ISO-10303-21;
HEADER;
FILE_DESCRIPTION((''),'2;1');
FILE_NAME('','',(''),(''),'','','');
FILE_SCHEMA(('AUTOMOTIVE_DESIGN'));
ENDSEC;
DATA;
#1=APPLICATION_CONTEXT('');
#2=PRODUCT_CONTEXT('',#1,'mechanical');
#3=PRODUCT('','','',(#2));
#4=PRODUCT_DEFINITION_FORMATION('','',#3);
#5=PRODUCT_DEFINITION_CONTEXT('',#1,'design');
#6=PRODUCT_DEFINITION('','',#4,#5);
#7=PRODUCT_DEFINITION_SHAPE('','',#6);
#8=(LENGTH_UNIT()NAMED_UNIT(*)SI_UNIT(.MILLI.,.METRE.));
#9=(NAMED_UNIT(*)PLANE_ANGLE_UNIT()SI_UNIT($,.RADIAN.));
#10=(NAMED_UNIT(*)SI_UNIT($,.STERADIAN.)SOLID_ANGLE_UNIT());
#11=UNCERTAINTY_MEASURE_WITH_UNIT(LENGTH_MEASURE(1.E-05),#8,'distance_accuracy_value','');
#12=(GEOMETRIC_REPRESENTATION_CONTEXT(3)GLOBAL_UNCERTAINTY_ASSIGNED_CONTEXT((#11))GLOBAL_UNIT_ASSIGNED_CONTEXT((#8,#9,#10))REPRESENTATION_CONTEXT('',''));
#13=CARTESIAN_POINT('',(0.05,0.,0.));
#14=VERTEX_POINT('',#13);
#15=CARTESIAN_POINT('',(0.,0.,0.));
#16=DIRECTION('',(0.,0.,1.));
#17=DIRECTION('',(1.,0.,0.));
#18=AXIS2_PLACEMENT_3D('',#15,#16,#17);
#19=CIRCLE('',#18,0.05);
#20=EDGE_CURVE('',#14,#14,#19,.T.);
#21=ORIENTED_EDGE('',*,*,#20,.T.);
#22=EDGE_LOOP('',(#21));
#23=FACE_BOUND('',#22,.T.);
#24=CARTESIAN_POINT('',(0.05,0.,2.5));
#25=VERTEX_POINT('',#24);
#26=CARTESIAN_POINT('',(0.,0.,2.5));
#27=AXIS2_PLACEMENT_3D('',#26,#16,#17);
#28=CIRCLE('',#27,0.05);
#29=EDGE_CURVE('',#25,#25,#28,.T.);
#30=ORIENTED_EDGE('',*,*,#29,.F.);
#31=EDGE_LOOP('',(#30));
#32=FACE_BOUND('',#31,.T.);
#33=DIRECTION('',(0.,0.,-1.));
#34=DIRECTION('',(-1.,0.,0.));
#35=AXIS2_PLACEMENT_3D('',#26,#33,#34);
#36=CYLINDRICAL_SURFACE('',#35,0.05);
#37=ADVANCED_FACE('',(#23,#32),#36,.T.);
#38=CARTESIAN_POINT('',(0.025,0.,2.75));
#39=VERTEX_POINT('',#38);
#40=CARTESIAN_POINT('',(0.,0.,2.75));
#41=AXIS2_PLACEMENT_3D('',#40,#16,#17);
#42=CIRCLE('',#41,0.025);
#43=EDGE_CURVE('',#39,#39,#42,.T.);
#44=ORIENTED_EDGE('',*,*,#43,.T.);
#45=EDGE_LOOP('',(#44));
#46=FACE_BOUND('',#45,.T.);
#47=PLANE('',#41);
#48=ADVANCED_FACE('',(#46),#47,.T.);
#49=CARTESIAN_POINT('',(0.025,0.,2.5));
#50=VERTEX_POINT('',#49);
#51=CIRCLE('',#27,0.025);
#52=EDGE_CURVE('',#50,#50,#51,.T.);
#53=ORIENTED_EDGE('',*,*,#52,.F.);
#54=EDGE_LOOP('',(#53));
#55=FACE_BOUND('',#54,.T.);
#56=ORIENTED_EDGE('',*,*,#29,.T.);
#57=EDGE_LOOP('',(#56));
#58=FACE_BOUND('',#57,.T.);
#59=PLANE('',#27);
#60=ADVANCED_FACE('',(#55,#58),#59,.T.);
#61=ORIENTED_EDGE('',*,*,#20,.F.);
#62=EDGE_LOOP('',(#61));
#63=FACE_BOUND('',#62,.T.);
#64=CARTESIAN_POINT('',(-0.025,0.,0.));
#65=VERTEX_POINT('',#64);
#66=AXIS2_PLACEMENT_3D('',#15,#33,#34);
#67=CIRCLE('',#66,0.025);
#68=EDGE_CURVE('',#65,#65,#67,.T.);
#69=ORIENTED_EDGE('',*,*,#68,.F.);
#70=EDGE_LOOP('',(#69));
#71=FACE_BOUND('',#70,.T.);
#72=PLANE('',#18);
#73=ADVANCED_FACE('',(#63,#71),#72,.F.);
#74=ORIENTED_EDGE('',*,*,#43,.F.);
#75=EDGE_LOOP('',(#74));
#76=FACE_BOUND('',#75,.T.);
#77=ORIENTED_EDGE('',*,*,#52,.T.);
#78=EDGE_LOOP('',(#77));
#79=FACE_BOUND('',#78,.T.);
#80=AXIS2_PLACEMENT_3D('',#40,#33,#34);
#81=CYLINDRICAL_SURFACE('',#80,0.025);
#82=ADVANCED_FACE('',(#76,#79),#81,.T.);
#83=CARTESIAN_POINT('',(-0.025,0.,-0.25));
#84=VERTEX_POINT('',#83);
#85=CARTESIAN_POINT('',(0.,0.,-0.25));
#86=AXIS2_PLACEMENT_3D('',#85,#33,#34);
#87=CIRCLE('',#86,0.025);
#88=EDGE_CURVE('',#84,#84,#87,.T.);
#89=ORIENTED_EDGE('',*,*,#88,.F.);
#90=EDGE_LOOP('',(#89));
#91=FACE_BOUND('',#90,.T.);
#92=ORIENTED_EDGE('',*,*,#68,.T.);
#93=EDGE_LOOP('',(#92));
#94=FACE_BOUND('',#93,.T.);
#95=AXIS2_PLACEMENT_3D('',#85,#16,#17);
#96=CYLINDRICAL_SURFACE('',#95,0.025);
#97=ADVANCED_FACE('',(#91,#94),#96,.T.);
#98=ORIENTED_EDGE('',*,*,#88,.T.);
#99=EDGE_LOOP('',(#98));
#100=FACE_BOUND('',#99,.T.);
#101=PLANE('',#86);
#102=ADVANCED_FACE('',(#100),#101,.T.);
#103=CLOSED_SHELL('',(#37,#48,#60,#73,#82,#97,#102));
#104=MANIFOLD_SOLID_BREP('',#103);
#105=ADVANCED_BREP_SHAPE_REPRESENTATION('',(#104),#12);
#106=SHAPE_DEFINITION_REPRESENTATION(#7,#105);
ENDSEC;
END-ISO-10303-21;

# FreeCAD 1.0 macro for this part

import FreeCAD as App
import Part
import Sketcher
from FreeCAD import Vector
Q = App.Units.Quantity

doc = App.newDocument("Part")
body = doc.addObject("PartDesign::Body", "Body")

sketch1 = body.newObject("Sketcher::SketchObject", "Sketch")
sketch1.AttachmentSupport = (doc.getObject("XY_Plane"), [""])
sketch1.MapMode = "FlatFace"
sketch1.addGeometry(Part.Circle(Vector(0, 0, 0), Vector(0, 0, 1), 0.05), False)
sketch1.addConstraint([
    Sketcher.Constraint("Coincident", 0, 3, -1, 1),
    Sketcher.Constraint("Diameter", 0, Q("0.1 mm")),
])
pad1 = body.newObject("PartDesign::Pad", "Pad")
pad1.Profile = sketch1
pad1.Length = 2.5

sketch2 = body.newObject("Sketcher::SketchObject", "Sketch001")
sketch2.AttachmentSupport = (doc.getObject("XY_Plane"), [""])
sketch2.MapMode = "FlatFace"
sketch2.AttachmentOffset = App.Placement(Vector(0, 0, 2.5), App.Rotation())
sketch2.addGeometry(Part.Circle(Vector(0, 0, 0), Vector(0, 0, 1), 0.025), False)
sketch2.addConstraint([
    Sketcher.Constraint("Coincident", 0, 3, -1, 1),
    Sketcher.Constraint("Diameter", 0, Q("0.05 mm")),
])
pad2 = body.newObject("PartDesign::Pad", "Pad001")
pad2.Profile = sketch2
pad2.Length = 0.25

sketch3 = body.newObject("Sketcher::SketchObject", "Sketch002")
sketch3.AttachmentSupport = (doc.getObject("XY_Plane"), [""])
sketch3.MapMode = "FlatFace"
sketch3.AttachmentOffset = App.Placement(Vector(0, 0, -0.25), App.Rotation())
sketch3.addGeometry(Part.Circle(Vector(0, 0, 0), Vector(0, 0, 1), 0.025), False)
sketch3.addConstraint([
    Sketcher.Constraint("Coincident", 0, 3, -1, 1),
    Sketcher.Constraint("Diameter", 0, Q("0.05 mm")),
])
pad3 = body.newObject("PartDesign::Pad", "Pad002")
pad3.Profile = sketch3
pad3.Length = 0.25

doc.recompute()
